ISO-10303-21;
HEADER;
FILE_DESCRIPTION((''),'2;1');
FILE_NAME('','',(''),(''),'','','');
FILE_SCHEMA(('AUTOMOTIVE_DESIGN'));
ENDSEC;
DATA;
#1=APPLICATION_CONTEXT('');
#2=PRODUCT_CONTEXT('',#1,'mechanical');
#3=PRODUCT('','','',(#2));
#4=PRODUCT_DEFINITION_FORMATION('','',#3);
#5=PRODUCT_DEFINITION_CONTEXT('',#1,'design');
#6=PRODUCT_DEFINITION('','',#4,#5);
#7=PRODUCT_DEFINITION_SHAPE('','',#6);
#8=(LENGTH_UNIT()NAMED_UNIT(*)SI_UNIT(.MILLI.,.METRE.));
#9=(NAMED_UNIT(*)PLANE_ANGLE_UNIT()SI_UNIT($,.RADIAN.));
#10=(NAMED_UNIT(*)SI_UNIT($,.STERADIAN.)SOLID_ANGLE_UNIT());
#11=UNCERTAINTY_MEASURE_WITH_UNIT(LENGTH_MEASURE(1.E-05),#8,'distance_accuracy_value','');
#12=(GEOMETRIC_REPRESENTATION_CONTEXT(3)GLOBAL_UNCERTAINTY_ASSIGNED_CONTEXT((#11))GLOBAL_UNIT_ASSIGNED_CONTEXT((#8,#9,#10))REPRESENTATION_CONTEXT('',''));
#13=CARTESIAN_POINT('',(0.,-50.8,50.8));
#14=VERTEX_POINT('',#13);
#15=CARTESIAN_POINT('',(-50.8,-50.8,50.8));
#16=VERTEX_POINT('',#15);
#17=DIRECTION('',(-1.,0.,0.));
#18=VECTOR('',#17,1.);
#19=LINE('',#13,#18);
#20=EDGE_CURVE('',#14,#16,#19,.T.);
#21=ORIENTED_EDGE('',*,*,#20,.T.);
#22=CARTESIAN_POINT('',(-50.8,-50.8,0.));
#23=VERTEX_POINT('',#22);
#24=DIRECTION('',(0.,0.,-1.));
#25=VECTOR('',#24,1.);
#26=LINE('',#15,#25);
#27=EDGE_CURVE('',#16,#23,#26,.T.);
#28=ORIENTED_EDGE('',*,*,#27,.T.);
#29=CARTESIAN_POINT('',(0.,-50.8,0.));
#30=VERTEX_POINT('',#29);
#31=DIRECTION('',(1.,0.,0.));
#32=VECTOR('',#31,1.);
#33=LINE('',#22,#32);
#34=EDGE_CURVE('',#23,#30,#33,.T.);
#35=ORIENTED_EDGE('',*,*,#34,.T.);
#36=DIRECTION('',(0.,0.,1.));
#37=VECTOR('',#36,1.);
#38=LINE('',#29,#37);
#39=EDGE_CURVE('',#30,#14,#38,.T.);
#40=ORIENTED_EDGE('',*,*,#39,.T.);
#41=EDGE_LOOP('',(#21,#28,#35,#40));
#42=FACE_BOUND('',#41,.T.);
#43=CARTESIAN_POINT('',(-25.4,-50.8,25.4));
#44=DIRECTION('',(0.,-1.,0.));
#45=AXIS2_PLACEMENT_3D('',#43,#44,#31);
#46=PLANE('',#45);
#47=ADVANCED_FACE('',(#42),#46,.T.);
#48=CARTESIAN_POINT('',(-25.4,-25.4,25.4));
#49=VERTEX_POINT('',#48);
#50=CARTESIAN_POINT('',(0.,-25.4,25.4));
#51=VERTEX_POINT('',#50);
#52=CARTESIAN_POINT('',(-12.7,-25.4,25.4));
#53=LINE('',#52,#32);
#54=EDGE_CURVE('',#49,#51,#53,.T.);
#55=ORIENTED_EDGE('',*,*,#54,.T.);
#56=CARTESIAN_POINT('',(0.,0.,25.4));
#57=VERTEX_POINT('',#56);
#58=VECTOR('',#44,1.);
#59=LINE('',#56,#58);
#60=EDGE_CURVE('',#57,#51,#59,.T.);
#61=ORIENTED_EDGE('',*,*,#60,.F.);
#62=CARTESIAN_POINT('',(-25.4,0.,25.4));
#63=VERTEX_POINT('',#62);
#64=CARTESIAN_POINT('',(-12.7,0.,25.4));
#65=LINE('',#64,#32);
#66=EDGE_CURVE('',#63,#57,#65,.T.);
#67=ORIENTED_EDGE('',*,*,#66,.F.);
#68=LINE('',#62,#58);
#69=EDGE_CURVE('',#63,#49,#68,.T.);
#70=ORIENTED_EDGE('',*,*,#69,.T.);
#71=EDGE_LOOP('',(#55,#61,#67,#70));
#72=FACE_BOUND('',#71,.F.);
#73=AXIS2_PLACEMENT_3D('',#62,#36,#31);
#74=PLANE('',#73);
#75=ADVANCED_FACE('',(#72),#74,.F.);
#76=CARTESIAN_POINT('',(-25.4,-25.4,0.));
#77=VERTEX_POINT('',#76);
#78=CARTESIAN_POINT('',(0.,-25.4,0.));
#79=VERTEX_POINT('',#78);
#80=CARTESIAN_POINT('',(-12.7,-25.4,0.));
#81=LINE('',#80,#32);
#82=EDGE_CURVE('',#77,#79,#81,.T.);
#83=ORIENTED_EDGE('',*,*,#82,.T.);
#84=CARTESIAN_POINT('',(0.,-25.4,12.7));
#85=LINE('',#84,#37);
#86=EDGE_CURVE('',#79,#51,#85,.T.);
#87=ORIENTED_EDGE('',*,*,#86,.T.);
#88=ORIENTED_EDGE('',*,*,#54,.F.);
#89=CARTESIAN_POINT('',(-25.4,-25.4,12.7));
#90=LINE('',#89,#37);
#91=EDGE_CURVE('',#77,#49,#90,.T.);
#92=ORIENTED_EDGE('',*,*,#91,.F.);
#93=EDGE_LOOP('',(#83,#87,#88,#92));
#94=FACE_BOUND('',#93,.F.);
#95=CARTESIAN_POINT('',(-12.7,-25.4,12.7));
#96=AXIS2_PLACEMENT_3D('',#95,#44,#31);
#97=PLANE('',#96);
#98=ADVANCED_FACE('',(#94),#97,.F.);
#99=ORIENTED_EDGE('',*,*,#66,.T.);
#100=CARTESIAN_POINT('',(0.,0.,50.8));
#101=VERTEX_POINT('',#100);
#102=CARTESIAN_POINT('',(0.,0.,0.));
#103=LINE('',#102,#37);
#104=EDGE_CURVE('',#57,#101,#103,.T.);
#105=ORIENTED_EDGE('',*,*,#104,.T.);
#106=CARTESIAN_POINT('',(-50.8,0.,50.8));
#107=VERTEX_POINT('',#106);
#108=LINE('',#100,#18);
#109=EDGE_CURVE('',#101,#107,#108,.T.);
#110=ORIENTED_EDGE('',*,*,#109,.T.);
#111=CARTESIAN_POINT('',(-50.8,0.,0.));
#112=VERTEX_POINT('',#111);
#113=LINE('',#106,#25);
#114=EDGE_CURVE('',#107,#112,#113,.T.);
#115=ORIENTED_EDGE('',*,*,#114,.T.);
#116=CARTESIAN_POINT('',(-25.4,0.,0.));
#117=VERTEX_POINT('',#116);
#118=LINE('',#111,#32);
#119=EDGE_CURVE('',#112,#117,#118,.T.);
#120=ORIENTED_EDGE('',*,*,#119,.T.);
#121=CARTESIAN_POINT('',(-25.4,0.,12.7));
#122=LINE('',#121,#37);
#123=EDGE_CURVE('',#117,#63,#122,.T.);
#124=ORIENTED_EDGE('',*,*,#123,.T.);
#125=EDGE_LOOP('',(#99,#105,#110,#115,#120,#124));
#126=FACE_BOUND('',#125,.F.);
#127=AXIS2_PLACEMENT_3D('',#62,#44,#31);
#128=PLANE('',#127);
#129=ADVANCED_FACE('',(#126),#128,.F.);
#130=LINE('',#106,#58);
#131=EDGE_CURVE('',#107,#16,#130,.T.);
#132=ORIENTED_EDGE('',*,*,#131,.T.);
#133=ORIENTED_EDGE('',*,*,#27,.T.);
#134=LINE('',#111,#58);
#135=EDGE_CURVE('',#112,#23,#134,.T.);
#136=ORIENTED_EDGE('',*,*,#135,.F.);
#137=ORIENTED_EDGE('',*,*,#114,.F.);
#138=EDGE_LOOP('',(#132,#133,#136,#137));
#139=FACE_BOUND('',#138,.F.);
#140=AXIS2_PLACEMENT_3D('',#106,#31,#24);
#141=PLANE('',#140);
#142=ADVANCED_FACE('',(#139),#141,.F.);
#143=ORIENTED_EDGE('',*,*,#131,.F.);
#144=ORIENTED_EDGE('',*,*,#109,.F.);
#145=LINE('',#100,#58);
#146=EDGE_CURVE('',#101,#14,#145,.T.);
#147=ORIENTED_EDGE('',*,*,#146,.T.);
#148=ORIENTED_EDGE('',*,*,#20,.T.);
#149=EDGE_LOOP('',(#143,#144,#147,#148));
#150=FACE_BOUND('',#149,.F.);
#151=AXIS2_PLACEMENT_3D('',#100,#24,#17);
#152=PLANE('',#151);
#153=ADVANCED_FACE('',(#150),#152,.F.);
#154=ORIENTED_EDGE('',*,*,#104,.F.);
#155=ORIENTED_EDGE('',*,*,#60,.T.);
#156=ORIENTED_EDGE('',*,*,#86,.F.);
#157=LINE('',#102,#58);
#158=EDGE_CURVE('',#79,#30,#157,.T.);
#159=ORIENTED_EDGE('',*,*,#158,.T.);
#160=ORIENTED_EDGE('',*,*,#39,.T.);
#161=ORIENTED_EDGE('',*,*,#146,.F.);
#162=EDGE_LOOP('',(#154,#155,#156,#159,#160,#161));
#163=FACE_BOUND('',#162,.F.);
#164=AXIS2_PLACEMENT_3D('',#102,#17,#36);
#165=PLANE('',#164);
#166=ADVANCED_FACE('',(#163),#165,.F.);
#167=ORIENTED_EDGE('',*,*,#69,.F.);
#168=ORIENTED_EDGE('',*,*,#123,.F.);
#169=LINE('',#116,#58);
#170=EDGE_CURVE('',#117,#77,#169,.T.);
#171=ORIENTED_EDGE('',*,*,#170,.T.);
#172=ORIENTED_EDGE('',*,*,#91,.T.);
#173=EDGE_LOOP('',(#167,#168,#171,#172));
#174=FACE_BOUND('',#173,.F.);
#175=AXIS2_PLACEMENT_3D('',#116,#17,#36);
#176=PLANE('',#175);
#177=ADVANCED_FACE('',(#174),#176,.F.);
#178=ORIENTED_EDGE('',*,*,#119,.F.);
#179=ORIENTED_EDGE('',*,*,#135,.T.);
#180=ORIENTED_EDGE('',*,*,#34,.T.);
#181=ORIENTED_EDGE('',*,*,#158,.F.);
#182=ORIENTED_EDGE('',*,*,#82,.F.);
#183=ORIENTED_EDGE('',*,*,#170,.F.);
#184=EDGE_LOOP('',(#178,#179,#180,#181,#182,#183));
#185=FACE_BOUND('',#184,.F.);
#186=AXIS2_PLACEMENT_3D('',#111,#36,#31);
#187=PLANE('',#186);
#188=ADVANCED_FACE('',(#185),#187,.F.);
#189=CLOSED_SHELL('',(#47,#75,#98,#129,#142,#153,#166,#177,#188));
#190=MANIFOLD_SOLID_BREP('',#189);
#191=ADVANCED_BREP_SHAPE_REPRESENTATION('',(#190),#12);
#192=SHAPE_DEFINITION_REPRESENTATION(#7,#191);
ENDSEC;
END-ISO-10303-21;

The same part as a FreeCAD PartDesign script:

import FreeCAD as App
import Part
import Sketcher
Q = App.Units.Quantity

doc = App.newDocument("Part")
params = doc.addObject("Spreadsheet::Sheet", "Params")
for row, (alias, value) in enumerate([
    ("sketch1_width", "2 in"),
    ("pad1_length", "2 in"),
    ("sketch2_width", "1 in"),
    ("pocket1_length", "1 in"),
], start=1):
    params.set(f"A{row}", alias)
    params.set(f"B{row}", "=" + value)
    params.setAlias(f"B{row}", alias)

body = doc.addObject("PartDesign::Body", "Body")

# Sketch on XZ plane
sketch1 = doc.addObject("Sketcher::SketchObject", "Sketch")
body.addObject(sketch1)
sketch1.AttachmentSupport = (doc.XZ_Plane, [""])
sketch1.MapMode = "FlatFace"
sketch1.addGeometry([
    Part.LineSegment(App.Vector(0, 0, 0), App.Vector(0, 51, 0)),
    Part.LineSegment(App.Vector(0, 51, 0), App.Vector(-51, 51, 0)),
    Part.LineSegment(App.Vector(-51, 51, 0), App.Vector(-51, 0, 0)),
    Part.LineSegment(App.Vector(-51, 0, 0), App.Vector(0, 0, 0)),
], False)
sketch1.addConstraint([
    Sketcher.Constraint("Coincident", 0, 2, 1, 1),
    Sketcher.Constraint("Coincident", 1, 2, 2, 1),
    Sketcher.Constraint("Coincident", 2, 2, 3, 1),
    Sketcher.Constraint("Coincident", 3, 2, 0, 1),
    Sketcher.Constraint("Vertical", 0),
    Sketcher.Constraint("Horizontal", 1),
    Sketcher.Constraint("Vertical", 2),
    Sketcher.Constraint("Horizontal", 3),
    Sketcher.Constraint("Coincident", 3, 2, -1, 1),
    Sketcher.Constraint("Equal", 3, 0),
    Sketcher.Constraint("DistanceX", 1, 2, 1, 1, Q("2 in")),
])
sketch1.setExpression("Constraints[10]", "Params.sketch1_width")
pad1 = doc.addObject("PartDesign::Pad", "Pad")
body.addObject(pad1)
pad1.Profile = sketch1
pad1.setExpression("Length", "Params.pad1_length")

# Sketch on XZ plane
sketch2 = doc.addObject("Sketcher::SketchObject", "Sketch001")
body.addObject(sketch2)
sketch2.AttachmentSupport = (doc.XZ_Plane, [""])
sketch2.MapMode = "FlatFace"
sketch2.addGeometry([
    Part.LineSegment(App.Vector(-25, 25, 0), App.Vector(-25, 0, 0)),
    Part.LineSegment(App.Vector(-25, 0, 0), App.Vector(0, 0, 0)),
    Part.LineSegment(App.Vector(0, 0, 0), App.Vector(0, 25, 0)),
    Part.LineSegment(App.Vector(0, 25, 0), App.Vector(-25, 25, 0)),
], False)
sketch2.addConstraint([
    Sketcher.Constraint("Coincident", 0, 2, 1, 1),
    Sketcher.Constraint("Coincident", 1, 2, 2, 1),
    Sketcher.Constraint("Coincident", 2, 2, 3, 1),
    Sketcher.Constraint("Coincident", 3, 2, 0, 1),
    Sketcher.Constraint("Vertical", 0),
    Sketcher.Constraint("Horizontal", 1),
    Sketcher.Constraint("Vertical", 2),
    Sketcher.Constraint("Horizontal", 3),
    Sketcher.Constraint("Coincident", 1, 2, -1, 1),
    Sketcher.Constraint("Equal", 3, 0),
    Sketcher.Constraint("DistanceX", 1, 1, 1, 2, Q("1 in")),
])
sketch2.setExpression("Constraints[10]", "Params.sketch2_width")
pocket1 = doc.addObject("PartDesign::Pocket", "Pocket")
body.addObject(pocket1)
pocket1.Profile = sketch2
pocket1.setExpression("Length", "Params.pocket1_length")
pocket1.Reversed = True

doc.recompute()
